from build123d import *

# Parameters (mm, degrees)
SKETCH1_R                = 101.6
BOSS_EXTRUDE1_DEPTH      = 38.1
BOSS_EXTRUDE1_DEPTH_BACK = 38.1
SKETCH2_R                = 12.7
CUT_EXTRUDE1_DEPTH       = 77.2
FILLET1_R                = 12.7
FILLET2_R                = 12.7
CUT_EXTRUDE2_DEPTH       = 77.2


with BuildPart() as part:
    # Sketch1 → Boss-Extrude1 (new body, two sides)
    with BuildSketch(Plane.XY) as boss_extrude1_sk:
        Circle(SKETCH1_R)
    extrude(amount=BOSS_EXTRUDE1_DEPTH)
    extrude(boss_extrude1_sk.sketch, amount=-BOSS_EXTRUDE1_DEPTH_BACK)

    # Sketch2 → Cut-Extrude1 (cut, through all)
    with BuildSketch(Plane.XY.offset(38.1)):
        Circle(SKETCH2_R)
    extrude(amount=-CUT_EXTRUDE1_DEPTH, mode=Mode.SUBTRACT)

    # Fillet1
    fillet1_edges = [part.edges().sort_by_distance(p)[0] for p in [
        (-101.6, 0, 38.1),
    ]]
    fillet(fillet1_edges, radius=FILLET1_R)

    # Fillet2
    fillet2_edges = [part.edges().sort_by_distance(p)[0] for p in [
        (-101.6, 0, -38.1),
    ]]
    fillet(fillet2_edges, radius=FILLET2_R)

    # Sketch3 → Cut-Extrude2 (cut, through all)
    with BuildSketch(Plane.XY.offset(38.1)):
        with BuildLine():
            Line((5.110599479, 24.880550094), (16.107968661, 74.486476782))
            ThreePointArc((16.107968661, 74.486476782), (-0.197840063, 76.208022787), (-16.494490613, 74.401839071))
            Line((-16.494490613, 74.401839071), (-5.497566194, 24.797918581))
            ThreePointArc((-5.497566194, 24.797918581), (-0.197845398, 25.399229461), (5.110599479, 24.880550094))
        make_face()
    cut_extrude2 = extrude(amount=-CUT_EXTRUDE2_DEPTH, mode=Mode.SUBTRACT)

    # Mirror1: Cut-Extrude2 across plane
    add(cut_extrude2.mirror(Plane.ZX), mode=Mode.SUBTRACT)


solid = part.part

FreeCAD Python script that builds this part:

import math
import FreeCAD as App
import Part
import Sketcher
from FreeCAD import Vector
Q = App.Units.Quantity


def edges_at(feature, points):
    """Names of the edges that pass closest to the given points."""
    edges = feature.Shape.Edges
    near = lambda p: min(range(len(edges)), key=lambda i: edges[i].distToShape(Part.Vertex(*p))[0])
    return sorted({f"Edge{near(p) + 1}" for p in points})

doc = App.newDocument("Part")
body = doc.addObject("PartDesign::Body", "Body")

# Sketch on XY plane
sketch1 = body.newObject("Sketcher::SketchObject", "Sketch")
sketch1.AttachmentSupport = (doc.getObject("XY_Plane"), [""])
sketch1.MapMode = "FlatFace"
sketch1.addGeometry(Part.Circle(Vector(0, 0, 0), Vector(0, 0, 1), 102), False)
sketch1.addConstraint(Sketcher.Constraint("Coincident", 0, 3, -1, 1))
sketch1.addConstraint(Sketcher.Constraint("Diameter", 0, Q("8 in")))
pad1 = body.newObject("PartDesign::Pad", "Pad")
pad1.Profile = sketch1
pad1.Type = "TwoLengths"
pad1.Length = Q("1.5 in")
pad1.Length2 = Q("1.5 in")

# Sketch on XY plane
sketch2 = body.newObject("Sketcher::SketchObject", "Sketch001")
sketch2.AttachmentSupport = (doc.getObject("XY_Plane"), [""])
sketch2.MapMode = "FlatFace"
sketch2.AttachmentOffset = App.Placement(Vector(0, 0, 1.5 * 25.4), App.Rotation())
sketch2.addGeometry(Part.Circle(Vector(0, 0, 0), Vector(0, 0, 1), 13), False)
sketch2.addConstraint(Sketcher.Constraint("Coincident", 0, 3, -1, 1))
sketch2.addConstraint(Sketcher.Constraint("Diameter", 0, Q("1 in")))
pocket1 = body.newObject("PartDesign::Pocket", "Pocket")
pocket1.Profile = sketch2
pocket1.Type = "ThroughAll"
doc.recompute()

fillet = body.newObject("PartDesign::Fillet", "Fillet")
fillet.Base = (pocket1, edges_at(pocket1, [(-101.6, 0, 38.1)]))
fillet.Radius = Q("0.5 in")
doc.recompute()

fillet2 = body.newObject("PartDesign::Fillet", "Fillet001")
fillet2.Base = (fillet, edges_at(fillet, [(-101.6, 0, -38.1)]))
fillet2.Radius = Q("0.5 in")

# Sketch on XY plane
sketch3 = body.newObject("Sketcher::SketchObject", "Sketch002")
sketch3.AttachmentSupport = (doc.getObject("XY_Plane"), [""])
sketch3.MapMode = "FlatFace"
sketch3.AttachmentOffset = App.Placement(Vector(0, 0, 1.5 * 25.4), App.Rotation())
sketch3.addGeometry(Part.LineSegment(Vector(5, 25, 0), Vector(16, 74, 0)), False)
sketch3.addGeometry(Part.ArcOfCircle(Part.Circle(Vector(0, 0, 0), Vector(0, 0, 1), 76), math.radians(78), math.radians(103)), False)
sketch3.addGeometry(Part.LineSegment(Vector(-16, 74, 0), Vector(-5, 25, 0)), False)
sketch3.addGeometry(Part.ArcOfCircle(Part.Circle(Vector(0, 0, 0), Vector(0, 0, 1), 25), math.radians(78), math.radians(103)), False)
sketch3.addConstraint(Sketcher.Constraint("Coincident", 0, 2, 1, 1))
sketch3.addConstraint(Sketcher.Constraint("Coincident", 1, 2, 2, 1))
sketch3.addConstraint(Sketcher.Constraint("Coincident", 2, 2, 3, 2))
sketch3.addConstraint(Sketcher.Constraint("Coincident", 3, 1, 0, 1))
sketch3.addConstraint(Sketcher.Constraint("Coincident", 1, 3, -1, 1))
sketch3.addConstraint(Sketcher.Constraint("Coincident", 3, 3, -1, 1))
sketch3.addConstraint(Sketcher.Constraint("Radius", 3, Q("1 in")))
sketch3.addConstraint(Sketcher.Constraint("Angle", 0, Q("77.5 deg")))
sketch3.addConstraint(Sketcher.Constraint("Angle", 2, Q("-77.5 deg")))
sketch3.addConstraint(Sketcher.Constraint("Radius", 1, 76.20828))
sketch3.addConstraint(Sketcher.Constraint("DistanceX", -1, 1, 3, 1, 5.110599))
sketch3.addConstraint(Sketcher.Constraint("DistanceX", 1, 2, -1, 1, 16.494491))
pocket2 = body.newObject("PartDesign::Pocket", "Pocket001")
pocket2.Profile = sketch3
pocket2.Type = "ThroughAll"
doc.recompute()

mirrored = body.newObject("PartDesign::Mirrored", "Mirrored")
mirrored.Originals = [pocket2]
mirrored.MirrorPlane = (doc.getObject("XZ_Plane"), [""])
body.Tip = mirrored

doc.recompute()
